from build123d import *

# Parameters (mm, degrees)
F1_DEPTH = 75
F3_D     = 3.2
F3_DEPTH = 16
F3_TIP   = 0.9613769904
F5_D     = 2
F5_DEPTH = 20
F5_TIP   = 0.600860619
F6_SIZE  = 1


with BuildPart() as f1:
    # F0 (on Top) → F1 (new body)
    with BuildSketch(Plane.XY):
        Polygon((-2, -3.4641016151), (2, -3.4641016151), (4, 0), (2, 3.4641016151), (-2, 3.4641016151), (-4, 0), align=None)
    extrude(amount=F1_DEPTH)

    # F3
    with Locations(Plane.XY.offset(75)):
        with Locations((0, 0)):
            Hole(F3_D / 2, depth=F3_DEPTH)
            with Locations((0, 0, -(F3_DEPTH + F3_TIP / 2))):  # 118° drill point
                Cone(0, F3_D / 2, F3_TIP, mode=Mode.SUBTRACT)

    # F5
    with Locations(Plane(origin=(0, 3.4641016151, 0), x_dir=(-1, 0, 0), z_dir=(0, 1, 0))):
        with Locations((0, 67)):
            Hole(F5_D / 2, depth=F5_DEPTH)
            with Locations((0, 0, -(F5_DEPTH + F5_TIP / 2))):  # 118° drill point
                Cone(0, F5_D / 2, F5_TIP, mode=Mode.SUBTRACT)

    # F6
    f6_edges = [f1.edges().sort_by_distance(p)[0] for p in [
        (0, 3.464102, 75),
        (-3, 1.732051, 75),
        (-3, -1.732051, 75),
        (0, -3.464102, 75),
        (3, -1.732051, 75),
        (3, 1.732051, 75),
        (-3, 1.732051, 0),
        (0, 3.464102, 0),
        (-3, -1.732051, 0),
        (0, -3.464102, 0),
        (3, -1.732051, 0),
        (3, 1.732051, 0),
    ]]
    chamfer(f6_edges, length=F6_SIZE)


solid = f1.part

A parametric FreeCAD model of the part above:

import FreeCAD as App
import Part
import Sketcher
Q = App.Units.Quantity


def edges_at(feature, points):
    """Names of the edges that pass closest to the given points."""
    edges = feature.Shape.Edges
    near = lambda p: min(range(len(edges)), key=lambda i: edges[i].distToShape(Part.Vertex(*p))[0])
    return sorted({f"Edge{near(p) + 1}" for p in points})


def add_polygon(sketch, points):
    """Adds a closed chain of lines whose ends are joined by coincident constraints."""
    first, n = sketch.GeometryCount, len(points)
    for a, b in zip(points, points[1:] + points[:1]):
        sketch.addGeometry(Part.LineSegment(App.Vector(*a, 0), App.Vector(*b, 0)), False)
    for i in range(n):
        sketch.addConstraint(Sketcher.Constraint("Coincident", first + i, 2, first + (i + 1) % n, 1))

doc = App.newDocument("Part")
params = doc.addObject("Spreadsheet::Sheet", "Params")
for row, (alias, value) in enumerate([
    ("sketch1_width", "4 mm"),
    ("sketch1_length", "4 mm"),
    ("pad1_length", "75 mm"),
    ("sketch2_diameter", "3.2 mm"),
    ("hole_diameter", "3.2 mm"),
    ("hole_depth", "16 mm"),
    ("sketch3_diameter", "2 mm"),
    ("hole2_diameter", "2 mm"),
    ("hole2_depth", "20 mm"),
    ("chamfer_size", "1 mm"),
], start=1):
    params.set(f"A{row}", alias)
    params.set(f"B{row}", "=" + value)
    params.setAlias(f"B{row}", alias)

body = doc.addObject("PartDesign::Body", "Body")

# Sketch on XY plane
sketch1 = body.newObject("Sketcher::SketchObject", "Sketch")
sketch1.AttachmentSupport = (doc.getObject("XY_Plane"), [""])
sketch1.MapMode = "FlatFace"
add_polygon(sketch1, [(-2, -3.464102), (2, -3.464102), (4, 0), (2, 3.464102), (-2, 3.464102), (-4, 0)])  # lines 0-5
sketch1.addConstraint([
    Sketcher.Constraint("Horizontal", 0),
    Sketcher.Constraint("Horizontal", 3),
    Sketcher.Constraint("Symmetric", 0, 2, 3, 2, -1, 1),
    Sketcher.Constraint("Symmetric", 1, 2, 4, 2, -1, 1),
    Sketcher.Constraint("PointOnObject", 1, 2, -1),
    Sketcher.Constraint("Parallel", 2, 5),
    Sketcher.Constraint("Vertical", 0, 2, 2, 2),
    Sketcher.Constraint("DistanceX", 0, 1, 0, 2, 4.0),
    Sketcher.Constraint("Angle", 1, Q("60 deg")),
    Sketcher.Constraint("Distance", 1, 4.0),
])
sketch1.setExpression("Constraints[13]", "Params.sketch1_width")
sketch1.setExpression("Constraints[15]", "Params.sketch1_length")
pad1 = body.newObject("PartDesign::Pad", "Pad")
pad1.Profile = sketch1
pad1.setExpression("Length", "Params.pad1_length")

# Sketch on XY plane
sketch2 = body.newObject("Sketcher::SketchObject", "Sketch001")
sketch2.AttachmentSupport = (doc.getObject("XY_Plane"), [""])
sketch2.MapMode = "FlatFace"
sketch2.AttachmentOffset = App.Placement(App.Vector(0, 0, 75), App.Rotation())
sketch2.addGeometry(Part.Circle(App.Vector(0, 0, 0), App.Vector(0, 0, 1), 1.6), False)
sketch2.addConstraint([
    Sketcher.Constraint("Coincident", 0, 3, -1, 1),
    Sketcher.Constraint("Diameter", 0, 3.2),
])
sketch2.setExpression("Constraints[1]", "Params.sketch2_diameter")
doc.recompute()
hole = body.newObject("PartDesign::Hole", "Hole")
hole.Profile = sketch2
hole.ThreadType = "None"
hole.setExpression("Diameter", "Params.hole_diameter")
hole.DepthType = "Dimension"
hole.setExpression("Depth", "Params.hole_depth")
hole.DrillPoint = "Angled"
hole.DrillPointAngle = 118

# Sketch on XZ plane
sketch3 = body.newObject("Sketcher::SketchObject", "Sketch002")
sketch3.AttachmentSupport = (doc.getObject("XZ_Plane"), [""])
sketch3.MapMode = "FlatFace"
sketch3.AttachmentOffset = App.Placement(App.Vector(0, 0, -3.464102), App.Rotation())
sketch3.addGeometry(Part.Circle(App.Vector(0, 67, 0), App.Vector(0, 0, 1), 1), False)
sketch3.addConstraint([
    Sketcher.Constraint("PointOnObject", 0, 3, -2),
    Sketcher.Constraint("Diameter", 0, 2.0),
    Sketcher.Constraint("DistanceY", -1, 1, 0, 3, 67.0),
])
sketch3.setExpression("Constraints[1]", "Params.sketch3_diameter")
doc.recompute()
hole2 = body.newObject("PartDesign::Hole", "Hole001")
hole2.Profile = sketch3
hole2.ThreadType = "None"
hole2.setExpression("Diameter", "Params.hole2_diameter")
hole2.DepthType = "Dimension"
hole2.setExpression("Depth", "Params.hole2_depth")
hole2.DrillPoint = "Angled"
hole2.DrillPointAngle = 118
hole2.Reversed = True
doc.recompute()

chamfer = body.newObject("PartDesign::Chamfer", "Chamfer")
chamfer.Base = (hole2, edges_at(hole2, [
    (0, 3.464, 75),
    (-3, 1.732, 75),
    (-3, -1.732, 75),
    (0, -3.464, 75),
    (3, -1.732, 75),
    (3, 1.732, 75),
    (-3, 1.732, 0),
    (0, 3.464, 0),
    (-3, -1.732, 0),
    (0, -3.464, 0),
    (3, -1.732, 0),
    (3, 1.732, 0),
]))
chamfer.setExpression("Size", "Params.chamfer_size")

doc.recompute()
